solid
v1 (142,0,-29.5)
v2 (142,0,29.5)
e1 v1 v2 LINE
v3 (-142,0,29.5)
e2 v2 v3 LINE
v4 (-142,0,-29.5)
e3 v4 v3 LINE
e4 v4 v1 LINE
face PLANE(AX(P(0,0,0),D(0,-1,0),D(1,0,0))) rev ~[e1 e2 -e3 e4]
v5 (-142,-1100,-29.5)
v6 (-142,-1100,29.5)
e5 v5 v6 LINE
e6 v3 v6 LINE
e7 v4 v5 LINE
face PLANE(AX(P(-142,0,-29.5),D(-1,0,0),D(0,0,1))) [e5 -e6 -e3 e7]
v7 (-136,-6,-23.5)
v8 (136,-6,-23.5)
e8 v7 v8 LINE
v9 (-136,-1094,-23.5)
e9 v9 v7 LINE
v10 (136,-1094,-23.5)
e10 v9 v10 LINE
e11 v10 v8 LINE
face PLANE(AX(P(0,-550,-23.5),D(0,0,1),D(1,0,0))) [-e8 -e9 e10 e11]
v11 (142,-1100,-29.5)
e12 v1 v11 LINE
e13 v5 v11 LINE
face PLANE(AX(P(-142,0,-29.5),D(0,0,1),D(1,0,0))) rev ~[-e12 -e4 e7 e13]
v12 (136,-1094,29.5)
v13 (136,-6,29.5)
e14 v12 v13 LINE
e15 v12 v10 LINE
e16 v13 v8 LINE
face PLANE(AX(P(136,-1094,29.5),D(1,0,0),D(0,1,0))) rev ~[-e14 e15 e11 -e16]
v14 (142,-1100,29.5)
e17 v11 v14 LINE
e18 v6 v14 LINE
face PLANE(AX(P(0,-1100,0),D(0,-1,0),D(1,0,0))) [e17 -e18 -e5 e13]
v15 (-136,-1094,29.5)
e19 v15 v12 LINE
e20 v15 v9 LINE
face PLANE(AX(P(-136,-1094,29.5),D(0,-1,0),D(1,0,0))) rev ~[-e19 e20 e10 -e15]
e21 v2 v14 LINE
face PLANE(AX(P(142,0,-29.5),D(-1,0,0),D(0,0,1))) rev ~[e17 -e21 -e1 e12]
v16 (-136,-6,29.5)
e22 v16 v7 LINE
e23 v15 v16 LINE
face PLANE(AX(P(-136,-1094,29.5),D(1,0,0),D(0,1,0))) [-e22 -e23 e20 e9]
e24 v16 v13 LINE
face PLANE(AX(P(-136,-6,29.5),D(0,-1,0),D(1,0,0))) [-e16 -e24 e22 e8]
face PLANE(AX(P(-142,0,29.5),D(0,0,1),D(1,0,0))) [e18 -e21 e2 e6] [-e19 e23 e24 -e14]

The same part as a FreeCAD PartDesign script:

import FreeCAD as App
import Part
import Sketcher
from FreeCAD import Vector
Q = App.Units.Quantity


def add_polygon(sketch, points):
    """Adds a closed chain of lines whose ends are joined by coincident constraints."""
    first, n = sketch.GeometryCount, len(points)
    for a, b in zip(points, points[1:] + points[:1]):
        sketch.addGeometry(Part.LineSegment(App.Vector(*a, 0), App.Vector(*b, 0)), False)
    for i in range(n):
        sketch.addConstraint(Sketcher.Constraint("Coincident", first + i, 2, first + (i + 1) % n, 1))

doc = App.newDocument("Part")
params = doc.addObject("Spreadsheet::Sheet", "Params")
for row, (alias, value) in enumerate([
    ("sketch1_width", "284 mm"),
    ("sketch1_height", "59 mm"),
    ("pad1_length", "1100 mm"),
    ("sketch2_width", "284 mm"),
    ("sketch2_width2", "278 mm"),
    ("sketch2_height", "1094 mm"),
    ("pocket1_length", "59 mm"),
    ("sketch3_width", "272 mm"),
    ("sketch3_height", "1088 mm"),
    ("pocket2_length", "53 mm"),
], start=1):
    params.set(f"A{row}", alias)
    params.set(f"B{row}", "=" + value)
    params.setAlias(f"B{row}", alias)

body = doc.addObject("PartDesign::Body", "Body")

# Sketch on XZ plane
sketch1 = body.newObject("Sketcher::SketchObject", "Sketch")
sketch1.AttachmentSupport = (doc.getObject("XZ_Plane"), [""])
sketch1.MapMode = "FlatFace"
add_polygon(sketch1, [(-142, 30), (-142, -30), (142, -30), (142, 30)])  # lines 0-3
sketch1.addConstraint([
    Sketcher.Constraint("Vertical", 0),
    Sketcher.Constraint("Horizontal", 1),
    Sketcher.Constraint("Vertical", 2),
    Sketcher.Constraint("Horizontal", 3),
    Sketcher.Constraint("Symmetric", 0, 2, 2, 2, -1, 1),
    Sketcher.Constraint("DistanceX", 1, 1, 1, 2, Q("284 mm")),
    Sketcher.Constraint("DistanceY", 0, 2, 0, 1, Q("59 mm")),
])
sketch1.setExpression("Constraints[9]", "Params.sketch1_width")
sketch1.setExpression("Constraints[10]", "Params.sketch1_height")
pad1 = body.newObject("PartDesign::Pad", "Pad")
pad1.Profile = sketch1
pad1.setExpression("Length", "Params.pad1_length")

# Sketch on XY plane
sketch2 = body.newObject("Sketcher::SketchObject", "Sketch001")
sketch2.AttachmentSupport = (doc.getObject("XY_Plane"), [""])
sketch2.MapMode = "FlatFace"
sketch2.AttachmentOffset = App.Placement(Vector(0, 0, 29.5), App.Rotation())
add_polygon(sketch2, [(148, 6), (-136, 6), (-136, 0), (142, 0), (142, -1094), (148, -1094)])  # lines 0-5
sketch2.addConstraint([
    Sketcher.Constraint("Horizontal", 0),
    Sketcher.Constraint("Vertical", 1),
    Sketcher.Constraint("Horizontal", 2),
    Sketcher.Constraint("Vertical", 3),
    Sketcher.Constraint("Horizontal", 4),
    Sketcher.Constraint("Vertical", 5),
    Sketcher.Constraint("PointOnObject", 1, 2, -1),
    Sketcher.Constraint("Equal", 4, 1),
    Sketcher.Constraint("DistanceX", 0, 2, 0, 1, Q("284 mm")),
    Sketcher.Constraint("DistanceX", 2, 1, 2, 2, Q("278 mm")),
    Sketcher.Constraint("DistanceY", 3, 2, 3, 1, Q("1094 mm")),
    Sketcher.Constraint("DistanceX", 0, 2, -1, 1, Q("136 mm")),
])
sketch2.setExpression("Constraints[14]", "Params.sketch2_width")
sketch2.setExpression("Constraints[15]", "Params.sketch2_width2")
sketch2.setExpression("Constraints[16]", "Params.sketch2_height")
pocket1 = body.newObject("PartDesign::Pocket", "Pocket")
pocket1.Profile = sketch2
pocket1.setExpression("Length", "Params.pocket1_length")

# Sketch on XY plane
sketch3 = body.newObject("Sketcher::SketchObject", "Sketch002")
sketch3.AttachmentSupport = (doc.getObject("XY_Plane"), [""])
sketch3.MapMode = "FlatFace"
sketch3.AttachmentOffset = App.Placement(Vector(0, 0, 29.5), App.Rotation())
add_polygon(sketch3, [(-136, -6), (-136, -1094), (136, -1094), (136, -6)])  # lines 0-3
sketch3.addConstraint([
    Sketcher.Constraint("Vertical", 0),
    Sketcher.Constraint("Horizontal", 1),
    Sketcher.Constraint("Vertical", 2),
    Sketcher.Constraint("Horizontal", 3),
    Sketcher.Constraint("DistanceX", 1, 1, 1, 2, Q("272 mm")),
    Sketcher.Constraint("DistanceY", 0, 2, 0, 1, Q("1088 mm")),
    Sketcher.Constraint("DistanceX", 0, 2, -1, 1, Q("136 mm")),
    Sketcher.Constraint("DistanceY", 0, 2, -1, 1, Q("1094 mm")),
])
sketch3.setExpression("Constraints[8]", "Params.sketch3_width")
sketch3.setExpression("Constraints[9]", "Params.sketch3_height")
pocket2 = body.newObject("PartDesign::Pocket", "Pocket001")
pocket2.Profile = sketch3
pocket2.setExpression("Length", "Params.pocket2_length")

doc.recompute()
